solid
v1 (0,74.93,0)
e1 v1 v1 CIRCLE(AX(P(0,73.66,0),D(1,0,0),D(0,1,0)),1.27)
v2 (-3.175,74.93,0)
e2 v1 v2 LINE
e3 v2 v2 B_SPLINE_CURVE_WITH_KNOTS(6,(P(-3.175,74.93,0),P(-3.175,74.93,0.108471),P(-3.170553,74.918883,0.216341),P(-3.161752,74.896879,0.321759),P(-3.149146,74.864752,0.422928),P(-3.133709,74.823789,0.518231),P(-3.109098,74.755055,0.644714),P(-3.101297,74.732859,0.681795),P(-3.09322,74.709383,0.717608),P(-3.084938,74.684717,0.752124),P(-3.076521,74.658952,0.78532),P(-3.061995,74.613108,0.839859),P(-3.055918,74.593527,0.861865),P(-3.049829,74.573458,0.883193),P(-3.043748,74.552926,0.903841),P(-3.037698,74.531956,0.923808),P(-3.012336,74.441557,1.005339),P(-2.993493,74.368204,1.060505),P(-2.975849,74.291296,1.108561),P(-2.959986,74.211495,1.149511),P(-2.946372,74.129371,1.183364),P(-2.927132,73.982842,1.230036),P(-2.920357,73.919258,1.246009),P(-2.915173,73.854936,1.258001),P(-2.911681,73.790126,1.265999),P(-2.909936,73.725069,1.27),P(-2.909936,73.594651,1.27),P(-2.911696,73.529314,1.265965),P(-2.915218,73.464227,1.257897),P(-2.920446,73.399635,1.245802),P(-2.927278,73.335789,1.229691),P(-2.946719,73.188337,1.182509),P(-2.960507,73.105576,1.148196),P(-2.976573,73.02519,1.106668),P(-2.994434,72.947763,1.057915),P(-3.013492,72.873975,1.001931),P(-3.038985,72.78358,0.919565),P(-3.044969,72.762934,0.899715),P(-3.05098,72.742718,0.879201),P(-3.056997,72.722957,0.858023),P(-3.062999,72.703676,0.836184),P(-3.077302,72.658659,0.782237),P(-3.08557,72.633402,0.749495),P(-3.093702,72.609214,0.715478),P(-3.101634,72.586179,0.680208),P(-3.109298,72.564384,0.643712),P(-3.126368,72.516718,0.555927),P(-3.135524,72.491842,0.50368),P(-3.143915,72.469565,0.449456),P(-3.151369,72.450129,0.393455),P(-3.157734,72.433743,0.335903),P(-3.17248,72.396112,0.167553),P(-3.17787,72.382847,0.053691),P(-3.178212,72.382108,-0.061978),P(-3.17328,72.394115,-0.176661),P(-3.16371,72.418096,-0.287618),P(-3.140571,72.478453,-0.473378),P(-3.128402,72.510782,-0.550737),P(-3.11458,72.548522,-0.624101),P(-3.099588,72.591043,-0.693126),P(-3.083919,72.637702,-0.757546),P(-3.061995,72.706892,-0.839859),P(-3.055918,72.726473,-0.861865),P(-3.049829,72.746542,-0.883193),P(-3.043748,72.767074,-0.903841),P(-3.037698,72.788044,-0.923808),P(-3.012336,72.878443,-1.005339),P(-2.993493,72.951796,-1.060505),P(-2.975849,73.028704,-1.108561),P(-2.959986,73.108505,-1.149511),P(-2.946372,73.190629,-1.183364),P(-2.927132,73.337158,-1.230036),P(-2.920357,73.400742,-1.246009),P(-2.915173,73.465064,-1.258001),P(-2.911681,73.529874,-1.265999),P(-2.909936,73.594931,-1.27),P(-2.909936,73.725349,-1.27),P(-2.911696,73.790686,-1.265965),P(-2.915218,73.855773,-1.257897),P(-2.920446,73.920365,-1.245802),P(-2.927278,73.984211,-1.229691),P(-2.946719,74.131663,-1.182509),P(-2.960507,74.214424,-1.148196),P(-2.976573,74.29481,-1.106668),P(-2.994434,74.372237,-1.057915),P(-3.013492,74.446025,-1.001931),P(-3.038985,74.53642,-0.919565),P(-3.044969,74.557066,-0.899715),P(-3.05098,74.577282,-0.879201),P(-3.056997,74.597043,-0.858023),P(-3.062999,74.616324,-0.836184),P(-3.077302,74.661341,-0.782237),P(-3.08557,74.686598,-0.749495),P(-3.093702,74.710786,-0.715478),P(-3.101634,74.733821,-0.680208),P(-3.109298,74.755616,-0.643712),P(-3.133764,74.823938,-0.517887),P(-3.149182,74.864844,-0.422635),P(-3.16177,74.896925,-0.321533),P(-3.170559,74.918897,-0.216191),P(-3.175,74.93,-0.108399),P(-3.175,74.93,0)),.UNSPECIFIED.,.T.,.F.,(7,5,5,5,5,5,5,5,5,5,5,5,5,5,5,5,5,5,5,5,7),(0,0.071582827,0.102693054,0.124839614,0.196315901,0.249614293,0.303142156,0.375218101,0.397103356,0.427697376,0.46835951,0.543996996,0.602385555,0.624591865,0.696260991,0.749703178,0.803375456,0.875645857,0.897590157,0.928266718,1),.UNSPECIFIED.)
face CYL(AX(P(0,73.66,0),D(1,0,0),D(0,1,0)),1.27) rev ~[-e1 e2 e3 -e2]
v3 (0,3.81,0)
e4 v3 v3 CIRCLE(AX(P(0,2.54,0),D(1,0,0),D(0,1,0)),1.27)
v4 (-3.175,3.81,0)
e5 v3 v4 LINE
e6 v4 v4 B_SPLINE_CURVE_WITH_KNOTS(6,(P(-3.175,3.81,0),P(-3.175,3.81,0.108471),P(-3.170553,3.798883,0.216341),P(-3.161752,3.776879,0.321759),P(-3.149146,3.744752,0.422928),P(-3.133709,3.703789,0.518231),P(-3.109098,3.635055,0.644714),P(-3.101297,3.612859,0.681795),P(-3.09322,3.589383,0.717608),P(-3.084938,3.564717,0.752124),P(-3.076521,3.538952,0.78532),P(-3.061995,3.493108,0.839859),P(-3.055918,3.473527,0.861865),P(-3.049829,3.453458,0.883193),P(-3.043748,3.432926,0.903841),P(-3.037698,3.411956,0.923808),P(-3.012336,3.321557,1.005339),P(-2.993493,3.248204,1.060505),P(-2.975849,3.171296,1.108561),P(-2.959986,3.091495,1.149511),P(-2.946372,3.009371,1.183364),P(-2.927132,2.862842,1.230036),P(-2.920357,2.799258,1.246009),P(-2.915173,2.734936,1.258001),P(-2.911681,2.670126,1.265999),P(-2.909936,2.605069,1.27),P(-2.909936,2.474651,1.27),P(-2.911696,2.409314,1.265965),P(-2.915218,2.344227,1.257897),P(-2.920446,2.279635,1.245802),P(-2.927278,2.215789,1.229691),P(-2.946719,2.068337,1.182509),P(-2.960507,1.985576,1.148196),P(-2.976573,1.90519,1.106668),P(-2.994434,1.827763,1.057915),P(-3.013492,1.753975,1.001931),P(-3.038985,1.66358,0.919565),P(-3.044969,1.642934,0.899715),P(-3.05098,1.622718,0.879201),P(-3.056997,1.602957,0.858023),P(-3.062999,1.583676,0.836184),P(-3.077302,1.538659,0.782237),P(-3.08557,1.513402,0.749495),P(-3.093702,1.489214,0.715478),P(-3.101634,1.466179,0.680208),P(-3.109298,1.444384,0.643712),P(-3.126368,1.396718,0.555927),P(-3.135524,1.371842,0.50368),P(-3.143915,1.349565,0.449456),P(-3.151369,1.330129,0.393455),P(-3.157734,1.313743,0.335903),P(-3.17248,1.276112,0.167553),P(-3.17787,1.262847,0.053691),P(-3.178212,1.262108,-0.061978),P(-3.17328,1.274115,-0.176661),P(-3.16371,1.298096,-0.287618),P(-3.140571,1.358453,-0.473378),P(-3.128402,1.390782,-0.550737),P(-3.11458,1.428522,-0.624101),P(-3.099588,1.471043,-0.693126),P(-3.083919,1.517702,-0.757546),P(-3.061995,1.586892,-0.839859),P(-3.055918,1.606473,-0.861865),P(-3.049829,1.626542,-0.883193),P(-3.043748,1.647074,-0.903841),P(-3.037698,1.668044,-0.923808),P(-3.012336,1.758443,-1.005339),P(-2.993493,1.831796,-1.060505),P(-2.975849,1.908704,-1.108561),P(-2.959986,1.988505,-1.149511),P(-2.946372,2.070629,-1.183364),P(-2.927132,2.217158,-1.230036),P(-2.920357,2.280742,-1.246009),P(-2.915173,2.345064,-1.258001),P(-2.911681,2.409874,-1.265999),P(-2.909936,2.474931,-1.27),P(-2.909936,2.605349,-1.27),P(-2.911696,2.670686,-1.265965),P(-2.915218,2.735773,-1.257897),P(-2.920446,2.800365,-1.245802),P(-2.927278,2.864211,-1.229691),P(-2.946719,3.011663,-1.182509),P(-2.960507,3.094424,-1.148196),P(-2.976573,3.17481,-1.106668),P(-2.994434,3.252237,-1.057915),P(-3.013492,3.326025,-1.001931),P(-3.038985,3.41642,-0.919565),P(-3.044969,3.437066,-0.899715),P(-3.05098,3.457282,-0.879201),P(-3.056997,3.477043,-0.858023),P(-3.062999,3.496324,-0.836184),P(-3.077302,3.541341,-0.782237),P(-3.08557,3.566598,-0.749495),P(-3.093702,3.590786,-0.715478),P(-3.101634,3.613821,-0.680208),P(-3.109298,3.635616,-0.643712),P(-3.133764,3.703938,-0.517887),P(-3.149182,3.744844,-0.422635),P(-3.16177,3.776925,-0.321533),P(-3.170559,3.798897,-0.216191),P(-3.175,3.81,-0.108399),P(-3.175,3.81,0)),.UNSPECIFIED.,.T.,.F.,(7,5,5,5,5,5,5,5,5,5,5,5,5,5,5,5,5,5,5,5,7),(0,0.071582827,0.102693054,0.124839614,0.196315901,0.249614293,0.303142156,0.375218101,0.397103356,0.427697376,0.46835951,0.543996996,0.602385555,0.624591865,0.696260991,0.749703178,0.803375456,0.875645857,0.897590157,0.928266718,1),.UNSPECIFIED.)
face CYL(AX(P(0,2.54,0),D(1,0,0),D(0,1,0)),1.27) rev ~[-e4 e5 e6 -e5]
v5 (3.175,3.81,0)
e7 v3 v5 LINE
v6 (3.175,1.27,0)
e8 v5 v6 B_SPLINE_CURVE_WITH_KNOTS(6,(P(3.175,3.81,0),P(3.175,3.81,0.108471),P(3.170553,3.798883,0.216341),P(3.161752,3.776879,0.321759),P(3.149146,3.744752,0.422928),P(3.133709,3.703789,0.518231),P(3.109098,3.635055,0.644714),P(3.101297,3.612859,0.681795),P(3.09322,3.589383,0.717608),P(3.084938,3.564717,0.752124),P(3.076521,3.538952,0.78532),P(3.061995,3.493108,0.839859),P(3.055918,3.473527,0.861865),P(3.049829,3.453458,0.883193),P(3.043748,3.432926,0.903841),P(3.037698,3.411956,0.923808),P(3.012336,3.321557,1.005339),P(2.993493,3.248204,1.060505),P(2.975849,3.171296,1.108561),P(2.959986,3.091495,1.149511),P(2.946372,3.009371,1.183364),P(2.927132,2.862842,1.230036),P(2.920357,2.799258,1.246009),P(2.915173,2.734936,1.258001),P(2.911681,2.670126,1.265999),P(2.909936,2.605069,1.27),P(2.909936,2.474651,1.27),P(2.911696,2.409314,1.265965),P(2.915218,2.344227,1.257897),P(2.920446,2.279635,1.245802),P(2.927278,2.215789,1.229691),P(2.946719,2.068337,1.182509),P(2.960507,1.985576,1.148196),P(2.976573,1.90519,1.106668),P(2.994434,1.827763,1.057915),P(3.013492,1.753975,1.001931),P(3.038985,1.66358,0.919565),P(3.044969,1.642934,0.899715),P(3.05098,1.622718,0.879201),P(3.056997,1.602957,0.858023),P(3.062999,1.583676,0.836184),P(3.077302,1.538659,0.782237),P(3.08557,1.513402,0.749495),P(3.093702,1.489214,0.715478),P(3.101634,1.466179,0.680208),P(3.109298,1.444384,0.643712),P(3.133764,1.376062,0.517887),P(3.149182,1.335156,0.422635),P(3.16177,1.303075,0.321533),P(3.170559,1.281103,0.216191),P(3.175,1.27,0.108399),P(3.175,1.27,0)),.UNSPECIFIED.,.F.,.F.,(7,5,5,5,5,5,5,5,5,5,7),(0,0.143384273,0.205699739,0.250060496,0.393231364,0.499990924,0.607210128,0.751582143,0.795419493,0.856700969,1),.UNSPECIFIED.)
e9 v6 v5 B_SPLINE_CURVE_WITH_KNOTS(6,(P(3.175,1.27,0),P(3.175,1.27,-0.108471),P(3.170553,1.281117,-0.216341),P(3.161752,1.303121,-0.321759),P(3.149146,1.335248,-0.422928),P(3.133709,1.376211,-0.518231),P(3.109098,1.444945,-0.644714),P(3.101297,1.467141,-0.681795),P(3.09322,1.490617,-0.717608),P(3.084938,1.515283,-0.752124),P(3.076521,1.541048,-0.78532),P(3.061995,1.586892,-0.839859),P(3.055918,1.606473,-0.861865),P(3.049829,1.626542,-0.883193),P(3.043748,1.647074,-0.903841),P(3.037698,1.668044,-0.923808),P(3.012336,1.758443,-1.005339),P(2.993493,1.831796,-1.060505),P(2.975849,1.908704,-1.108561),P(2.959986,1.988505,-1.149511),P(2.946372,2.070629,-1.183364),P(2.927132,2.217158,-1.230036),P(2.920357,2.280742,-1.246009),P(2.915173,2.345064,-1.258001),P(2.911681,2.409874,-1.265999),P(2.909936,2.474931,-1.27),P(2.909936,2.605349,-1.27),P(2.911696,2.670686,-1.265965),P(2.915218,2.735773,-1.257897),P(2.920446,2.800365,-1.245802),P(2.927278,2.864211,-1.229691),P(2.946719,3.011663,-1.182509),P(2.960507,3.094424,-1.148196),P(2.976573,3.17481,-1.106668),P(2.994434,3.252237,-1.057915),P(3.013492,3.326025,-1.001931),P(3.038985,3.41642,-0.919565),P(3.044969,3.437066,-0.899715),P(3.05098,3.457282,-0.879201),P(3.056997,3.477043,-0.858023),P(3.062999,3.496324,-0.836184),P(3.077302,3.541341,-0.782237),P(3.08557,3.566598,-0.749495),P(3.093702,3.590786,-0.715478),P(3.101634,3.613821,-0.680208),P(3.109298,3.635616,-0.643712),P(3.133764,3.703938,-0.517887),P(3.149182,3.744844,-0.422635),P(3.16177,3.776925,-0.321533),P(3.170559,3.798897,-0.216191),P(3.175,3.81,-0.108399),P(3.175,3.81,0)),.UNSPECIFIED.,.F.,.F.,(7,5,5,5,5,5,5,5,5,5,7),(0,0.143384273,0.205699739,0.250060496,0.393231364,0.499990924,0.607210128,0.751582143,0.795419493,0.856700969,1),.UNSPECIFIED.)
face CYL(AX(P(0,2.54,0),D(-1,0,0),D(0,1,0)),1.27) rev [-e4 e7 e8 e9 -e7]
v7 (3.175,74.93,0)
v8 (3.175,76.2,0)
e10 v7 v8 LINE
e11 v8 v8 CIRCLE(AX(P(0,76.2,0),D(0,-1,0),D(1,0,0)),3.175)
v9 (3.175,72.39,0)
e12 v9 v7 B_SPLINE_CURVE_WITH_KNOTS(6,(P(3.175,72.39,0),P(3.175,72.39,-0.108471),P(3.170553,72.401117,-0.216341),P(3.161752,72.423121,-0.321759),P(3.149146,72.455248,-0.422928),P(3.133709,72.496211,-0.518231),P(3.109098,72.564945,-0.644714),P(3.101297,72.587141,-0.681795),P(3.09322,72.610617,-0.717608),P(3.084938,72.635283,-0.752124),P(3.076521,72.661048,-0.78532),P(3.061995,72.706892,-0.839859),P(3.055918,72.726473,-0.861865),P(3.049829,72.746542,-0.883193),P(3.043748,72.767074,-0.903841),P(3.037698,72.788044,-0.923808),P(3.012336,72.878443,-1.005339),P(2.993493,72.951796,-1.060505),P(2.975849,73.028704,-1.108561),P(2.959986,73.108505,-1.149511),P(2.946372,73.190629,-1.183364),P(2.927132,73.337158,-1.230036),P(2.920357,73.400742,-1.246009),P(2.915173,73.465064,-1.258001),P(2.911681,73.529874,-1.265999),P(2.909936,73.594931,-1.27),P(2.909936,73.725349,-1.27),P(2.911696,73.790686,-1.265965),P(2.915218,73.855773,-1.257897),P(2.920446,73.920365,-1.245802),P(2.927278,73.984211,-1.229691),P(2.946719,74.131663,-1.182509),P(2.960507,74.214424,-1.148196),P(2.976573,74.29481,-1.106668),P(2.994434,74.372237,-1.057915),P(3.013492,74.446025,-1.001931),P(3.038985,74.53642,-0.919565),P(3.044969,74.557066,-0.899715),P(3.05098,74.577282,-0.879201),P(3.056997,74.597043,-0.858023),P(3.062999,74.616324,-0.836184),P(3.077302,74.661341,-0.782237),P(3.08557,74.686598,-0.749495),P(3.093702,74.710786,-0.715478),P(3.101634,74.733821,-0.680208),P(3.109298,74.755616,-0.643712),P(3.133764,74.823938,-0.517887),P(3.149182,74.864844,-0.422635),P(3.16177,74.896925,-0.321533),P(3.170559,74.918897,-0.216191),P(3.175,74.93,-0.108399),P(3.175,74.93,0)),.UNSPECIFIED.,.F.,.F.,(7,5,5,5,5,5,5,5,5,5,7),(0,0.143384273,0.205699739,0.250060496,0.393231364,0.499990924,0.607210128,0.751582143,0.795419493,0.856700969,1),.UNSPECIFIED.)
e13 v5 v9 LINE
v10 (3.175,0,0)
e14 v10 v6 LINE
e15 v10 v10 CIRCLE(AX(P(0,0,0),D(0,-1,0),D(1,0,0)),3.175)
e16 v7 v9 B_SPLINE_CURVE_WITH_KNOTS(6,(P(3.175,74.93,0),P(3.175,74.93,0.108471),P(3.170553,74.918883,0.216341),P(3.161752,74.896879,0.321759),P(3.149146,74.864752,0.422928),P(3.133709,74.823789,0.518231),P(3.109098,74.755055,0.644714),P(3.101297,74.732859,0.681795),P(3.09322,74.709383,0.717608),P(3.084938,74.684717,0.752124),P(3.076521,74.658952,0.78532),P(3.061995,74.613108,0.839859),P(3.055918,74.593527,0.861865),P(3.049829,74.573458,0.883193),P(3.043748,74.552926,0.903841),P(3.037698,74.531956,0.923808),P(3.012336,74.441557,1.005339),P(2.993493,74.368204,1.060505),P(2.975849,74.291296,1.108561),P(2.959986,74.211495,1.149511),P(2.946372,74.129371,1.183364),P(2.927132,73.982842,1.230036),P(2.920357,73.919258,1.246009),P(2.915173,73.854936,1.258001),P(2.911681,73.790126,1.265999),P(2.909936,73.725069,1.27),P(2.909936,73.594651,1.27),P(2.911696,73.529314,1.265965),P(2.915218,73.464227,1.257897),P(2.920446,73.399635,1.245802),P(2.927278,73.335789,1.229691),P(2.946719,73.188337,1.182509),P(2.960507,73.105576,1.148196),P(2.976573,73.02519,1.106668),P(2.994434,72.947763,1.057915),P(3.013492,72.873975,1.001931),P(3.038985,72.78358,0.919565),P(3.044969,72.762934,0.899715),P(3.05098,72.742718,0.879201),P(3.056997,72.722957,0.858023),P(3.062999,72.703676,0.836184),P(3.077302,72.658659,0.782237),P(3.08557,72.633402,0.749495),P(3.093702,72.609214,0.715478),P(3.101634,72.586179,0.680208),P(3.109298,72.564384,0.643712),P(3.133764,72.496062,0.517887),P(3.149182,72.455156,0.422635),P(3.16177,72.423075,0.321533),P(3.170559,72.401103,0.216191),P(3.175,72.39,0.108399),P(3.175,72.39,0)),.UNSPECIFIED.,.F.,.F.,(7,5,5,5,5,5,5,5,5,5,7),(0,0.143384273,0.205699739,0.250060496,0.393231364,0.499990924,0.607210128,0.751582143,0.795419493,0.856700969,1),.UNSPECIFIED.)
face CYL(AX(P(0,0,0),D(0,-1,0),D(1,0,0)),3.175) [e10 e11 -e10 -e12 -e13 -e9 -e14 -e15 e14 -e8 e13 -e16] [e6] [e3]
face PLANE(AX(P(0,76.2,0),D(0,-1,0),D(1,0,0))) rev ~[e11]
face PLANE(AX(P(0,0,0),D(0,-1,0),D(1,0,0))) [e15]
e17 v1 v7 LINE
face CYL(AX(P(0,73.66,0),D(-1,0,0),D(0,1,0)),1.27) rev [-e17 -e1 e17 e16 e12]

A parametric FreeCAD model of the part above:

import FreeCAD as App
import Part
import Sketcher
from FreeCAD import Vector
Q = App.Units.Quantity

doc = App.newDocument("Part")
body = doc.addObject("PartDesign::Body", "Body")

# Sketch on XZ plane
sketch1 = doc.addObject("Sketcher::SketchObject", "Sketch")
body.addObject(sketch1)
sketch1.AttachmentSupport = (doc.XZ_Plane, [""])
sketch1.MapMode = "FlatFace"
sketch1.addGeometry(Part.Circle(Vector(0, 0, 0), Vector(0, 0, 1), 3.2), False)
sketch1.addConstraint([
    Sketcher.Constraint("Coincident", 0, 3, -1, 1),
    Sketcher.Constraint("Diameter", 0, Q("0.25 in")),
])
pad1 = doc.addObject("PartDesign::Pad", "Pad")
body.addObject(pad1)
pad1.Profile = sketch1
pad1.Length = Q("3 in")
pad1.Reversed = True

# Sketch on YZ plane
sketch2 = doc.addObject("Sketcher::SketchObject", "Sketch001")
body.addObject(sketch2)
sketch2.AttachmentSupport = (doc.YZ_Plane, [""])
sketch2.MapMode = "FlatFace"
sketch2.addGeometry([
    Part.Circle(Vector(2.5, 0, 0), Vector(0, 0, 1), 1.3),
    Part.Circle(Vector(73.7, 0, 0), Vector(0, 0, 1), 1.3),
], False)
sketch2.addConstraint([
    Sketcher.Constraint("Equal", 0, 1),
    Sketcher.Constraint("PointOnObject", 0, 3, -1),
    Sketcher.Constraint("PointOnObject", 1, 3, -1),
    Sketcher.Constraint("Diameter", 0, Q("0.1 in")),
    Sketcher.Constraint("DistanceX", -1, 1, 0, 3, Q("0.1 in")),
    Sketcher.Constraint("DistanceX", -1, 1, 1, 3, Q("2.9 in")),
])
pocket1 = doc.addObject("PartDesign::Pocket", "Pocket")
body.addObject(pocket1)
pocket1.Profile = sketch2
pocket1.Type = "ThroughAll"
pocket1.Reversed = True

# Sketch on YZ plane
sketch3 = doc.addObject("Sketcher::SketchObject", "Sketch002")
body.addObject(sketch3)
sketch3.AttachmentSupport = (doc.YZ_Plane, [""])
sketch3.MapMode = "FlatFace"
sketch3.addGeometry([
    Part.Circle(Vector(2.5, 0, 0), Vector(0, 0, 1), 1.3),
    Part.Circle(Vector(73.7, 0, 0), Vector(0, 0, 1), 1.3),
], False)
sketch3.addConstraint([
    Sketcher.Constraint("Equal", 0, 1),
    Sketcher.Constraint("PointOnObject", 0, 3, -1),
    Sketcher.Constraint("PointOnObject", 1, 3, -1),
    Sketcher.Constraint("Diameter", 0, Q("0.1 in")),
    Sketcher.Constraint("DistanceX", -1, 1, 0, 3, Q("0.1 in")),
    Sketcher.Constraint("DistanceX", -1, 1, 1, 3, Q("2.9 in")),
])
pocket2 = doc.addObject("PartDesign::Pocket", "Pocket001")
body.addObject(pocket2)
pocket2.Profile = sketch3
pocket2.Type = "ThroughAll"

doc.recompute()
